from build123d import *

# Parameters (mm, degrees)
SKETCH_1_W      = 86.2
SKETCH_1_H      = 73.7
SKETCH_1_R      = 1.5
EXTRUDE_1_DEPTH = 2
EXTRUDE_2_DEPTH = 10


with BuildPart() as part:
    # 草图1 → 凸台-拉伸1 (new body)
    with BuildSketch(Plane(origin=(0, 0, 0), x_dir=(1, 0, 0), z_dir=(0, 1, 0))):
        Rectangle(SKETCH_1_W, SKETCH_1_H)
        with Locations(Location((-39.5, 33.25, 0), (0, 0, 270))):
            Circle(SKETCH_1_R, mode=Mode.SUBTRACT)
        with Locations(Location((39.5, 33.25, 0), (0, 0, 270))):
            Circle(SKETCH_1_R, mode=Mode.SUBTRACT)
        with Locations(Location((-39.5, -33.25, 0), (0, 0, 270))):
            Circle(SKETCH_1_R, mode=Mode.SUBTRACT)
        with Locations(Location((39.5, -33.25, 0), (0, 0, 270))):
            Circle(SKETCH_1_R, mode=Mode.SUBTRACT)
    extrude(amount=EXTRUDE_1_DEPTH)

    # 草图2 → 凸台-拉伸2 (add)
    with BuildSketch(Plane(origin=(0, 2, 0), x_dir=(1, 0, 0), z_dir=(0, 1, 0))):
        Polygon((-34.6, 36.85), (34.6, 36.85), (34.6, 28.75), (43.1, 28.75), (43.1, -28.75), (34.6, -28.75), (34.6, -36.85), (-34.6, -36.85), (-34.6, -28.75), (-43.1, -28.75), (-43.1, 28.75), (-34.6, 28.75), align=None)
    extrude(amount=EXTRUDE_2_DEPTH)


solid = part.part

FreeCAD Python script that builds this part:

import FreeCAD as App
import Part
import Sketcher

V = App.Vector
Q = App.Units.Quantity

doc = App.newDocument("Part")
body = doc.addObject("PartDesign::Body", "Body")

# Sketch on XZ plane
sketch1 = body.newObject("Sketcher::SketchObject", "Sketch")
sketch1.AttachmentSupport = (doc.getObject("XZ_Plane"), [""])
sketch1.MapMode = "FlatFace"
sketch1.addGeometry([
    Part.LineSegment(V(-43.1, -36.85, 0), V(-43.1, 36.85, 0)),  # 0
    Part.LineSegment(V(-43.1, 36.85, 0), V(43.1, 36.85, 0)),  # 1
    Part.LineSegment(V(43.1, 36.85, 0), V(43.1, -36.85, 0)),  # 2
    Part.LineSegment(V(43.1, -36.85, 0), V(-43.1, -36.85, 0)),  # 3
    Part.Circle(V(-39.5, 33.25, 0), V(0, 0, 1), 1.5),  # 4
    Part.Circle(V(39.5, 33.25, 0), V(0, 0, 1), 1.5),  # 5
    Part.Circle(V(-39.5, -33.25, 0), V(0, 0, 1), 1.5),  # 6
    Part.Circle(V(39.5, -33.25, 0), V(0, 0, 1), 1.5),  # 7
], False)
sketch1.addConstraint([
    Sketcher.Constraint("Coincident", 0, 2, 1, 1),
    Sketcher.Constraint("Coincident", 1, 2, 2, 1),
    Sketcher.Constraint("Coincident", 2, 2, 3, 1),
    Sketcher.Constraint("Coincident", 3, 2, 0, 1),
    Sketcher.Constraint("Vertical", 0),
    Sketcher.Constraint("Horizontal", 1),
    Sketcher.Constraint("Vertical", 2),
    Sketcher.Constraint("Horizontal", 3),
    Sketcher.Constraint("Equal", 4, 5),
    Sketcher.Constraint("Equal", 5, 6),
    Sketcher.Constraint("Equal", 6, 7),
    Sketcher.Constraint("Symmetric", 5, 3, 6, 3, -1, 1),
    Sketcher.Constraint("Symmetric", 4, 3, 7, 3, -1, 1),
    Sketcher.Constraint("Symmetric", 0, 2, 2, 2, -1, 1),
    Sketcher.Constraint("Symmetric", 4, 3, 5, 3, -2),
    Sketcher.Constraint("Diameter", 4, Q("3 mm")),
    Sketcher.Constraint("DistanceX", 1, 1, 1, 2, Q("86.2 mm")),
    Sketcher.Constraint("DistanceY", 0, 1, 0, 2, Q("73.7 mm")),
    Sketcher.Constraint("DistanceX", 4, 3, 5, 3, Q("79 mm")),
    Sketcher.Constraint("DistanceY", 6, 3, 4, 3, Q("66.5 mm")),
])
pad1 = body.newObject("PartDesign::Pad", "Pad")
pad1.Profile = sketch1
pad1.Length = 2
pad1.Reversed = True

# Sketch on XZ plane
sketch2 = body.newObject("Sketcher::SketchObject", "Sketch001")
sketch2.AttachmentSupport = (doc.getObject("XZ_Plane"), [""])
sketch2.MapMode = "FlatFace"
sketch2.AttachmentOffset = App.Placement(V(0, 0, -2), App.Rotation())
sketch2.addGeometry([
    Part.LineSegment(V(34.6, -36.85, 0), V(-34.6, -36.85, 0)),  # 0
    Part.LineSegment(V(-34.6, -36.85, 0), V(-34.6, -28.75, 0)),  # 1
    Part.LineSegment(V(-34.6, -28.75, 0), V(-43.1, -28.75, 0)),  # 2
    Part.LineSegment(V(-43.1, -28.75, 0), V(-43.1, 28.75, 0)),  # 3
    Part.LineSegment(V(-43.1, 28.75, 0), V(-34.6, 28.75, 0)),  # 4
    Part.LineSegment(V(-34.6, 28.75, 0), V(-34.6, 36.85, 0)),  # 5
    Part.LineSegment(V(-34.6, 36.85, 0), V(34.6, 36.85, 0)),  # 6
    Part.LineSegment(V(34.6, 36.85, 0), V(34.6, 28.75, 0)),  # 7
    Part.LineSegment(V(34.6, 28.75, 0), V(43.1, 28.75, 0)),  # 8
    Part.LineSegment(V(43.1, 28.75, 0), V(43.1, -28.75, 0)),  # 9
    Part.LineSegment(V(43.1, -28.75, 0), V(34.6, -28.75, 0)),  # 10
    Part.LineSegment(V(34.6, -28.75, 0), V(34.6, -36.85, 0)),  # 11
], False)
sketch2.addConstraint([
    Sketcher.Constraint("Coincident", 0, 2, 1, 1),
    Sketcher.Constraint("Coincident", 1, 2, 2, 1),
    Sketcher.Constraint("Coincident", 2, 2, 3, 1),
    Sketcher.Constraint("Coincident", 3, 2, 4, 1),
    Sketcher.Constraint("Coincident", 4, 2, 5, 1),
    Sketcher.Constraint("Coincident", 5, 2, 6, 1),
    Sketcher.Constraint("Coincident", 6, 2, 7, 1),
    Sketcher.Constraint("Coincident", 7, 2, 8, 1),
    Sketcher.Constraint("Coincident", 8, 2, 9, 1),
    Sketcher.Constraint("Coincident", 9, 2, 10, 1),
    Sketcher.Constraint("Coincident", 10, 2, 11, 1),
    Sketcher.Constraint("Coincident", 11, 2, 0, 1),
    Sketcher.Constraint("Horizontal", 0),
    Sketcher.Constraint("Vertical", 1),
    Sketcher.Constraint("Horizontal", 2),
    Sketcher.Constraint("Vertical", 3),
    Sketcher.Constraint("Horizontal", 4),
    Sketcher.Constraint("Vertical", 5),
    Sketcher.Constraint("Horizontal", 6),
    Sketcher.Constraint("Vertical", 7),
    Sketcher.Constraint("Horizontal", 8),
    Sketcher.Constraint("Vertical", 9),
    Sketcher.Constraint("Horizontal", 10),
    Sketcher.Constraint("Vertical", 11),
    Sketcher.Constraint("Symmetric", 0, 2, 6, 2, -1, 1),
    Sketcher.Constraint("Symmetric", 2, 2, 8, 2, -1, 1),
    Sketcher.Constraint("Symmetric", 4, 2, 10, 2, -1, 1),
    Sketcher.Constraint("Symmetric", 4, 2, 7, 2, -2),
    Sketcher.Constraint("DistanceX", 0, 2, 0, 1, Q("69.2 mm")),
    Sketcher.Constraint("DistanceX", 2, 2, 2, 1, Q("8.5 mm")),
    Sketcher.Constraint("DistanceY", 1, 1, 1, 2, Q("8.1 mm")),
    Sketcher.Constraint("DistanceY", 3, 1, 3, 2, Q("57.5 mm")),
])
pad2 = body.newObject("PartDesign::Pad", "Pad001")
pad2.Profile = sketch2
pad2.Length = 10
pad2.Reversed = True

doc.recompute()
